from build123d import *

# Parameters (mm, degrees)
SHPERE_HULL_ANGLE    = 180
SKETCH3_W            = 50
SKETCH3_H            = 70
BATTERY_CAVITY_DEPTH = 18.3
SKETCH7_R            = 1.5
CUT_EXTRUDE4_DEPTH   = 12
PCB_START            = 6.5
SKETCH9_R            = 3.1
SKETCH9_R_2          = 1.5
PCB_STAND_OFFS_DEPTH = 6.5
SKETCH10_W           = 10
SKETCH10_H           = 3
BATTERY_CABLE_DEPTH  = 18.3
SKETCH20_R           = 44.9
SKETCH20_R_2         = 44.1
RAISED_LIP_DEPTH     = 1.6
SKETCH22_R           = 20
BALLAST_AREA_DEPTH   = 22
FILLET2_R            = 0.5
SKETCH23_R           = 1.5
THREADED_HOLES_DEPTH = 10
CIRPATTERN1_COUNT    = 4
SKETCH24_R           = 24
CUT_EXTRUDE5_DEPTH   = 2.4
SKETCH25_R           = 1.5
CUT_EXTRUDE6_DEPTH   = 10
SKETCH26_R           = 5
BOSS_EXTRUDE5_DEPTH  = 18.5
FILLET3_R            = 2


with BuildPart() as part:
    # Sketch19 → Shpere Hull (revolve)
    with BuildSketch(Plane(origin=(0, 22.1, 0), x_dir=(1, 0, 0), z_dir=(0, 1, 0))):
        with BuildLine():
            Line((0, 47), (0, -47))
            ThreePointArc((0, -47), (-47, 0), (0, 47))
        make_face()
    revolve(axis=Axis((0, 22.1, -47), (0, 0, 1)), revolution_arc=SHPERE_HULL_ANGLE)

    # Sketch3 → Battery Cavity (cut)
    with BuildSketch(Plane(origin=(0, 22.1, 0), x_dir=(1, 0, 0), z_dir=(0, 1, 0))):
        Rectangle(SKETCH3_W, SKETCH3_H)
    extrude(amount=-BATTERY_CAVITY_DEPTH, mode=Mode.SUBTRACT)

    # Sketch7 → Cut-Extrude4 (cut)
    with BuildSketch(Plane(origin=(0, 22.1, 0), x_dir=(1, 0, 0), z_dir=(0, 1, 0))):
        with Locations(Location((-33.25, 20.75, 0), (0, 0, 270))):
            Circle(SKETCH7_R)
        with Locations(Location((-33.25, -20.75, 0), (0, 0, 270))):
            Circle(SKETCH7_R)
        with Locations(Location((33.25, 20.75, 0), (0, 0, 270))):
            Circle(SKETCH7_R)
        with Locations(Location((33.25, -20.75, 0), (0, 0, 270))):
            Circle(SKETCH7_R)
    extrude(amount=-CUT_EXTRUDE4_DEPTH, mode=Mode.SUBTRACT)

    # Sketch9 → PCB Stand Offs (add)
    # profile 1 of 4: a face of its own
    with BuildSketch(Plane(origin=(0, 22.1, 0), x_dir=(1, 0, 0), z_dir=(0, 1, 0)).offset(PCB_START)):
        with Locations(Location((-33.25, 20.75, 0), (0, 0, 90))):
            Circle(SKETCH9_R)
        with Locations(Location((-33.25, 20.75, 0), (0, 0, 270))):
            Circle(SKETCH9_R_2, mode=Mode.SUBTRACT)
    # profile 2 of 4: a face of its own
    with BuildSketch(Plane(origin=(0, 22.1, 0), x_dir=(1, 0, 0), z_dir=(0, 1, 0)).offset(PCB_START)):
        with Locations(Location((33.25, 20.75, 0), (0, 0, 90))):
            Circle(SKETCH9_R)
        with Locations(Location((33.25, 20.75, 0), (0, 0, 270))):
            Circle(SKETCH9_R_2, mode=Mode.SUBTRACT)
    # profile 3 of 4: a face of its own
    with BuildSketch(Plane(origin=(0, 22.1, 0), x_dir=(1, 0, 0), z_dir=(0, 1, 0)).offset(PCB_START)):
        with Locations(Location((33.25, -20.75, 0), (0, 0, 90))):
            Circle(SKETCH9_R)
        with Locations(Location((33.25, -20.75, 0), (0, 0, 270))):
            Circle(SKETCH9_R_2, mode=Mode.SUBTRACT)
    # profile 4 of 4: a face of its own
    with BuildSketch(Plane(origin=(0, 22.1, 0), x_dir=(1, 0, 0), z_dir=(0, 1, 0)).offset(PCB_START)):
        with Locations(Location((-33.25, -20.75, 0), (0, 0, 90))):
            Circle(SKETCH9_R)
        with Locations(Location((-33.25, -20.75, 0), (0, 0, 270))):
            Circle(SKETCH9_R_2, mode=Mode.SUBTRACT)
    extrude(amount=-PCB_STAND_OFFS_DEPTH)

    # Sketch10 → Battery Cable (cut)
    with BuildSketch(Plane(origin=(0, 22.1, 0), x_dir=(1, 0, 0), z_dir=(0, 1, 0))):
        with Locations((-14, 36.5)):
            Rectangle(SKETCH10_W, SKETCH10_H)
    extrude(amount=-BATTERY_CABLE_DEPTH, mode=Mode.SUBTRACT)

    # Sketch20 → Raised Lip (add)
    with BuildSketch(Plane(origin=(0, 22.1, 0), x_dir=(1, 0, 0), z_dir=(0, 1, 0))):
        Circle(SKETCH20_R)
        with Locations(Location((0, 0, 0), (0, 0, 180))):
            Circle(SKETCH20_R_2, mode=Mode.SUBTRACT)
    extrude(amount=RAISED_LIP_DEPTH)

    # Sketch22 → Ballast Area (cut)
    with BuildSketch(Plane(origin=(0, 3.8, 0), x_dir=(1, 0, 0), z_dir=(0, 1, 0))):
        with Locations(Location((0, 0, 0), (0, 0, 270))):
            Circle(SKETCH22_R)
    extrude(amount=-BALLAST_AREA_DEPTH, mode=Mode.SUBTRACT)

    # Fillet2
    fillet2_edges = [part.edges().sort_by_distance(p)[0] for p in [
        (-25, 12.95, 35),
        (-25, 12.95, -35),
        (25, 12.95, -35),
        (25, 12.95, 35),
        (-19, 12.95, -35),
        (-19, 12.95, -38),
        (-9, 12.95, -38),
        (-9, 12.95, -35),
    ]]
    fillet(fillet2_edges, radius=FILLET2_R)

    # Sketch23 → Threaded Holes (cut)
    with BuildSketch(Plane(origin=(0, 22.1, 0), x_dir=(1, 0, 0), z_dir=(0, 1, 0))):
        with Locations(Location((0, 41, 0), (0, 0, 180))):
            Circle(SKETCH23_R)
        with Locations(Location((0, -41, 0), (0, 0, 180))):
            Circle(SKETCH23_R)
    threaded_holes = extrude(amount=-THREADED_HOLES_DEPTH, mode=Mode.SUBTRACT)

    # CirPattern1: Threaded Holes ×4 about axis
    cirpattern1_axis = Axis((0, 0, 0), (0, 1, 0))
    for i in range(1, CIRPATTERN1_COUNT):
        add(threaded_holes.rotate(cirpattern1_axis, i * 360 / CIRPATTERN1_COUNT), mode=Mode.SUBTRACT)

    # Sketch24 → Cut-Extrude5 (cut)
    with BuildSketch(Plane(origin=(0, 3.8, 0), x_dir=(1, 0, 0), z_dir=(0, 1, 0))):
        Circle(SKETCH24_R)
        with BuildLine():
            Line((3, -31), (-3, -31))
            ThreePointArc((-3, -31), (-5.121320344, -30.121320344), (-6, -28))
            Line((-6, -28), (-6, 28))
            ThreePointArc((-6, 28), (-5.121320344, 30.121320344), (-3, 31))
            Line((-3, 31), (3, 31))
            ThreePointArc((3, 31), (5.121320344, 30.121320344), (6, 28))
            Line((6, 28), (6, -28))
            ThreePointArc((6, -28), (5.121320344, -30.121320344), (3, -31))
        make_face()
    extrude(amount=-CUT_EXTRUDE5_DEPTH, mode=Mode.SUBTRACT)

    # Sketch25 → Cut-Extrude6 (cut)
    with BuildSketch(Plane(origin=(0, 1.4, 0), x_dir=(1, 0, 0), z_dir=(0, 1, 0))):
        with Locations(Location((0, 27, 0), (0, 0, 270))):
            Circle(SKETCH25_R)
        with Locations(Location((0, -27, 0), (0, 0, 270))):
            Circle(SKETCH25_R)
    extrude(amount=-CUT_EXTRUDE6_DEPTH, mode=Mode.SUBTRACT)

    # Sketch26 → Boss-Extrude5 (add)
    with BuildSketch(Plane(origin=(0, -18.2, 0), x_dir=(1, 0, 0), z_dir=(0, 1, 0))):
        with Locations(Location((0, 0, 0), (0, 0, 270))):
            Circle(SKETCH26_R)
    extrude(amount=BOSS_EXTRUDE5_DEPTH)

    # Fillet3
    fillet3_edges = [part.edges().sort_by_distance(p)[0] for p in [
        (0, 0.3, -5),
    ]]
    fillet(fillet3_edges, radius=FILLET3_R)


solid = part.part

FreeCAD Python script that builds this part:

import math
import FreeCAD as App
import Part
import Sketcher

V = App.Vector


def edges_at(feature, points):
    """Names of the edges that pass closest to the given points."""
    edges = feature.Shape.Edges
    near = lambda p: min(range(len(edges)), key=lambda i: edges[i].distToShape(Part.Vertex(*p))[0])
    return sorted({f"Edge{near(p) + 1}" for p in points})

doc = App.newDocument("Part")
body = doc.addObject("PartDesign::Body", "Body")

sketch1 = doc.addObject("Sketcher::SketchObject", "Sketch")
body.addObject(sketch1)
sketch1.AttachmentSupport = (doc.XZ_Plane, [""])
sketch1.MapMode = "FlatFace"
sketch1.AttachmentOffset = App.Placement(V(0, 0, -22.1), App.Rotation())
sketch1.addGeometry([
    Part.LineSegment(V(0, 47, 0), V(0, -47, 0)),
    Part.ArcOfCircle(Part.Circle(V(0, 0, 0), V(0, 0, 1), 47), math.radians(90), math.radians(270)),
], False)
sketch1.addConstraint([
    Sketcher.Constraint("Coincident", 0, 1, 1, 1),
    Sketcher.Constraint("Coincident", 1, 2, 0, 2),
    Sketcher.Constraint("Vertical", 0),
    Sketcher.Constraint("Coincident", 1, 3, -1, 1),
    Sketcher.Constraint("PointOnObject", 0, 1, -2),
    Sketcher.Constraint("Radius", 1, 47.0),
])
revolution = doc.addObject("PartDesign::Revolution", "Revolution")
body.addObject(revolution)
revolution.Profile = sketch1
revolution.ReferenceAxis = (sketch1, ["V_Axis"])
revolution.Angle = 180

sketch2 = doc.addObject("Sketcher::SketchObject", "Sketch001")
body.addObject(sketch2)
sketch2.AttachmentSupport = (doc.XZ_Plane, [""])
sketch2.MapMode = "FlatFace"
sketch2.AttachmentOffset = App.Placement(V(0, 0, -22.1), App.Rotation())
sketch2.addGeometry([
    Part.LineSegment(V(-25, -35, 0), V(-25, 35, 0)),
    Part.LineSegment(V(-25, 35, 0), V(25, 35, 0)),
    Part.LineSegment(V(25, 35, 0), V(25, -35, 0)),
    Part.LineSegment(V(25, -35, 0), V(-25, -35, 0)),
], False)
sketch2.addConstraint([
    Sketcher.Constraint("Coincident", 0, 2, 1, 1),
    Sketcher.Constraint("Coincident", 1, 2, 2, 1),
    Sketcher.Constraint("Coincident", 2, 2, 3, 1),
    Sketcher.Constraint("Coincident", 3, 2, 0, 1),
    Sketcher.Constraint("Vertical", 0),
    Sketcher.Constraint("Horizontal", 1),
    Sketcher.Constraint("Vertical", 2),
    Sketcher.Constraint("Horizontal", 3),
    Sketcher.Constraint("Symmetric", 0, 2, 2, 2, -1, 1),
    Sketcher.Constraint("DistanceX", 1, 1, 1, 2, 50.0),
    Sketcher.Constraint("DistanceY", 0, 1, 0, 2, 70.0),
])
pocket1 = doc.addObject("PartDesign::Pocket", "Pocket")
body.addObject(pocket1)
pocket1.Profile = sketch2
pocket1.Length = 18.3
pocket1.Reversed = True

sketch3 = doc.addObject("Sketcher::SketchObject", "Sketch002")
body.addObject(sketch3)
sketch3.AttachmentSupport = (doc.XZ_Plane, [""])
sketch3.MapMode = "FlatFace"
sketch3.AttachmentOffset = App.Placement(V(0, 0, -22.1), App.Rotation())
sketch3.addGeometry([
    Part.Circle(V(-33.2, -20.8, 0), V(0, 0, 1), 1.5),
    Part.Circle(V(-33.2, 20.8, 0), V(0, 0, 1), 1.5),
    Part.Circle(V(33.2, -20.8, 0), V(0, 0, 1), 1.5),
    Part.Circle(V(33.2, 20.8, 0), V(0, 0, 1), 1.5),
], False)
sketch3.addConstraint([
    Sketcher.Constraint("Equal", 0, 1),
    Sketcher.Constraint("Equal", 1, 2),
    Sketcher.Constraint("Equal", 2, 3),
    Sketcher.Constraint("Symmetric", 1, 3, 2, 3, -1, 1),
    Sketcher.Constraint("Symmetric", 0, 3, 3, 3, -1, 1),
    Sketcher.Constraint("Symmetric", 0, 3, 2, 3, -2),
    Sketcher.Constraint("Diameter", 0, 3.0),
    Sketcher.Constraint("DistanceY", 0, 3, 1, 3, 41.5),
    Sketcher.Constraint("DistanceX", 0, 3, 2, 3, 66.5),
])
pocket2 = doc.addObject("PartDesign::Pocket", "Pocket001")
body.addObject(pocket2)
pocket2.Profile = sketch3
pocket2.Length = 12
pocket2.Reversed = True

sketch4 = doc.addObject("Sketcher::SketchObject", "Sketch003")
body.addObject(sketch4)
sketch4.AttachmentSupport = (doc.XZ_Plane, [""])
sketch4.MapMode = "FlatFace"
sketch4.AttachmentOffset = App.Placement(V(0, 0, -28.6), App.Rotation())
sketch4.addGeometry([
    Part.Circle(V(-33.2, -20.8, 0), V(0, 0, 1), 3.1),
    Part.Circle(V(-33.2, -20.8, 0), V(0, 0, 1), 1.5),
    Part.Circle(V(33.2, -20.8, 0), V(0, 0, 1), 3.1),
    Part.Circle(V(33.2, -20.8, 0), V(0, 0, 1), 1.5),
    Part.Circle(V(33.2, 20.8, 0), V(0, 0, 1), 3.1),
    Part.Circle(V(33.2, 20.8, 0), V(0, 0, 1), 1.5),
    Part.Circle(V(-33.2, 20.8, 0), V(0, 0, 1), 3.1),
    Part.Circle(V(-33.2, 20.8, 0), V(0, 0, 1), 1.5),
], False)
sketch4.addConstraint([
    Sketcher.Constraint("Coincident", 1, 3, 0, 3),
    Sketcher.Constraint("Coincident", 3, 3, 2, 3),
    Sketcher.Constraint("Coincident", 5, 3, 4, 3),
    Sketcher.Constraint("Coincident", 7, 3, 6, 3),
    Sketcher.Constraint("Equal", 0, 2),
    Sketcher.Constraint("Equal", 1, 3),
    Sketcher.Constraint("Equal", 2, 4),
    Sketcher.Constraint("Equal", 3, 5),
    Sketcher.Constraint("Equal", 4, 6),
    Sketcher.Constraint("Equal", 5, 7),
    Sketcher.Constraint("Symmetric", 0, 3, 4, 3, -1, 1),
    Sketcher.Constraint("Symmetric", 2, 3, 6, 3, -1, 1),
    Sketcher.Constraint("Symmetric", 0, 3, 2, 3, -2),
    Sketcher.Constraint("Diameter", 1, 3.0),
    Sketcher.Constraint("Diameter", 0, 6.2),
    Sketcher.Constraint("DistanceX", 0, 3, 2, 3, 66.5),
    Sketcher.Constraint("DistanceY", 2, 3, 4, 3, 41.5),
])
pad1 = doc.addObject("PartDesign::Pad", "Pad")
body.addObject(pad1)
pad1.Profile = sketch4
pad1.Length = 6.5

sketch5 = doc.addObject("Sketcher::SketchObject", "Sketch004")
body.addObject(sketch5)
sketch5.AttachmentSupport = (doc.XZ_Plane, [""])
sketch5.MapMode = "FlatFace"
sketch5.AttachmentOffset = App.Placement(V(0, 0, -22.1), App.Rotation())
sketch5.addGeometry([
    Part.LineSegment(V(-19, -38, 0), V(-19, -35, 0)),
    Part.LineSegment(V(-19, -35, 0), V(-9, -35, 0)),
    Part.LineSegment(V(-9, -35, 0), V(-9, -38, 0)),
    Part.LineSegment(V(-9, -38, 0), V(-19, -38, 0)),
], False)
sketch5.addConstraint([
    Sketcher.Constraint("Coincident", 0, 2, 1, 1),
    Sketcher.Constraint("Coincident", 1, 2, 2, 1),
    Sketcher.Constraint("Coincident", 2, 2, 3, 1),
    Sketcher.Constraint("Coincident", 3, 2, 0, 1),
    Sketcher.Constraint("Vertical", 0),
    Sketcher.Constraint("Horizontal", 1),
    Sketcher.Constraint("Vertical", 2),
    Sketcher.Constraint("Horizontal", 3),
    Sketcher.Constraint("DistanceX", 1, 1, 1, 2, 10.0),
    Sketcher.Constraint("DistanceY", 0, 1, 0, 2, 3.0),
    Sketcher.Constraint("DistanceX", 0, 2, -1, 1, 19.0),
    Sketcher.Constraint("DistanceY", 0, 2, -1, 1, 35.0),
])
pocket3 = doc.addObject("PartDesign::Pocket", "Pocket002")
body.addObject(pocket3)
pocket3.Profile = sketch5
pocket3.Length = 18.3
pocket3.Reversed = True

sketch6 = doc.addObject("Sketcher::SketchObject", "Sketch005")
body.addObject(sketch6)
sketch6.AttachmentSupport = (doc.XZ_Plane, [""])
sketch6.MapMode = "FlatFace"
sketch6.AttachmentOffset = App.Placement(V(0, 0, -22.1), App.Rotation())
sketch6.addGeometry([
    Part.Circle(V(0, 0, 0), V(0, 0, 1), 45),
    Part.Circle(V(0, 0, 0), V(0, 0, 1), 44),
], False)
sketch6.addConstraint([
    Sketcher.Constraint("Coincident", 0, 3, -1, 1),
    Sketcher.Constraint("Coincident", 1, 3, -1, 1),
    Sketcher.Constraint("Diameter", 0, 89.8),
    Sketcher.Constraint("Diameter", 1, 88.2),
])
pad2 = doc.addObject("PartDesign::Pad", "Pad001")
body.addObject(pad2)
pad2.Profile = sketch6
pad2.Length = 1.6
pad2.Reversed = True

sketch7 = doc.addObject("Sketcher::SketchObject", "Sketch006")
body.addObject(sketch7)
sketch7.AttachmentSupport = (doc.XZ_Plane, [""])
sketch7.MapMode = "FlatFace"
sketch7.AttachmentOffset = App.Placement(V(0, 0, -3.8), App.Rotation())
sketch7.addGeometry(Part.Circle(V(0, 0, 0), V(0, 0, 1), 20), False)
sketch7.addConstraint([
    Sketcher.Constraint("Coincident", 0, 3, -1, 1),
    Sketcher.Constraint("Diameter", 0, 40.0),
])
pocket4 = doc.addObject("PartDesign::Pocket", "Pocket003")
body.addObject(pocket4)
pocket4.Profile = sketch7
pocket4.Length = 22
pocket4.Reversed = True
doc.recompute()

fillet = doc.addObject("PartDesign::Fillet", "Fillet")
body.addObject(fillet)
fillet.Base = (pocket4, edges_at(pocket4, [
    (-25, 12.95, 35),
    (-25, 12.95, -35),
    (25, 12.95, -35),
    (25, 12.95, 35),
    (-19, 12.95, -35),
    (-19, 12.95, -38),
    (-9, 12.95, -38),
    (-9, 12.95, -35),
]))
fillet.Radius = 0.5

sketch8 = doc.addObject("Sketcher::SketchObject", "Sketch007")
body.addObject(sketch8)
sketch8.AttachmentSupport = (doc.XZ_Plane, [""])
sketch8.MapMode = "FlatFace"
sketch8.AttachmentOffset = App.Placement(V(0, 0, -22.1), App.Rotation())
sketch8.addGeometry([
    Part.Circle(V(0, -41, 0), V(0, 0, 1), 1.5),
    Part.Circle(V(0, 41, 0), V(0, 0, 1), 1.5),
], False)
sketch8.addConstraint([
    Sketcher.Constraint("Equal", 0, 1),
    Sketcher.Constraint("Symmetric", 0, 3, 1, 3, -1, 1),
    Sketcher.Constraint("PointOnObject", 0, 3, -2),
    Sketcher.Constraint("Diameter", 0, 3.0),
    Sketcher.Constraint("DistanceY", 0, 3, -1, 1, 41.0),
])
pocket5 = doc.addObject("PartDesign::Pocket", "Pocket004")
body.addObject(pocket5)
pocket5.Profile = sketch8
pocket5.Length = 10
pocket5.Reversed = True
doc.recompute()

polarpattern = doc.addObject("PartDesign::PolarPattern", "PolarPattern")
body.addObject(polarpattern)
polarpattern.Originals = [pocket5]
polarpattern.Axis = (doc.Y_Axis, [""])
polarpattern.Angle = 360
polarpattern.Occurrences = 4
body.Tip = polarpattern

sketch9 = doc.addObject("Sketcher::SketchObject", "Sketch008")
body.addObject(sketch9)
sketch9.AttachmentSupport = (doc.XZ_Plane, [""])
sketch9.MapMode = "FlatFace"
sketch9.AttachmentOffset = App.Placement(V(0, 0, -3.8), App.Rotation())
sketch9.addGeometry([
    Part.ArcOfCircle(Part.Circle(V(0, 0, 0), V(0, 0, 1), 24), math.radians(-76), math.radians(76)),
    Part.LineSegment(V(6, -23.2, 0), V(6, -28, 0)),
    Part.ArcOfCircle(Part.Circle(V(3, -28, 0), V(0, 0, 1), 3), math.radians(-90), math.radians(0)),
    Part.LineSegment(V(3, -31, 0), V(-3, -31, 0)),
    Part.ArcOfCircle(Part.Circle(V(-3, -28, 0), V(0, 0, 1), 3), math.radians(180), math.radians(270)),
    Part.LineSegment(V(-6, -28, 0), V(-6, -23.2, 0)),
    Part.ArcOfCircle(Part.Circle(V(0, 0, 0), V(0, 0, 1), 24), math.radians(104), math.radians(256)),
    Part.LineSegment(V(-6, 23.2, 0), V(-6, 28, 0)),
    Part.ArcOfCircle(Part.Circle(V(-3, 28, 0), V(0, 0, 1), 3), math.radians(90), math.radians(180)),
    Part.LineSegment(V(-3, 31, 0), V(3, 31, 0)),
    Part.ArcOfCircle(Part.Circle(V(3, 28, 0), V(0, 0, 1), 3), math.radians(0), math.radians(90)),
    Part.LineSegment(V(6, 28, 0), V(6, 23.2, 0)),
], False)
sketch9.addConstraint([
    Sketcher.Constraint("Coincident", 0, 1, 1, 1),
    Sketcher.Constraint("Tangent", 1, 2, 2, 2),
    Sketcher.Constraint("Tangent", 2, 1, 3, 1),
    Sketcher.Constraint("Tangent", 3, 2, 4, 2),
    Sketcher.Constraint("Tangent", 4, 1, 5, 1),
    Sketcher.Constraint("Coincident", 5, 2, 6, 2),
    Sketcher.Constraint("Coincident", 6, 1, 7, 1),
    Sketcher.Constraint("Tangent", 7, 2, 8, 2),
    Sketcher.Constraint("Tangent", 8, 1, 9, 1),
    Sketcher.Constraint("Tangent", 9, 2, 10, 2),
    Sketcher.Constraint("Tangent", 10, 1, 11, 1),
    Sketcher.Constraint("Coincident", 11, 2, 0, 2),
    Sketcher.Constraint("Vertical", 1),
    Sketcher.Constraint("Horizontal", 3),
    Sketcher.Constraint("Vertical", 5),
    Sketcher.Constraint("Vertical", 7),
    Sketcher.Constraint("Horizontal", 9),
    Sketcher.Constraint("Vertical", 11),
    Sketcher.Constraint("Coincident", 0, 3, -1, 1),
    Sketcher.Constraint("Coincident", 6, 3, -1, 1),
    Sketcher.Constraint("Equal", 2, 4),
    Sketcher.Constraint("Equal", 0, 6),
    Sketcher.Constraint("Equal", 4, 8),
    Sketcher.Constraint("Equal", 8, 10),
    Sketcher.Constraint("Symmetric", 2, 3, 8, 3, -1, 1),
    Sketcher.Constraint("Horizontal", 0, 1, 5, 2),
    Sketcher.Constraint("Horizontal", 6, 1, 11, 2),
    Sketcher.Constraint("Radius", 0, 24.0),
    Sketcher.Constraint("Radius", 2, 3.0),
    Sketcher.Constraint("DistanceX", 3, 2, 3, 1, 6.0),
    Sketcher.Constraint("DistanceY", 2, 3, -1, 1, 28.0),
])
pocket6 = doc.addObject("PartDesign::Pocket", "Pocket005")
body.addObject(pocket6)
pocket6.Profile = sketch9
pocket6.Length = 2.4
pocket6.Reversed = True

sketch10 = doc.addObject("Sketcher::SketchObject", "Sketch009")
body.addObject(sketch10)
sketch10.AttachmentSupport = (doc.XZ_Plane, [""])
sketch10.MapMode = "FlatFace"
sketch10.AttachmentOffset = App.Placement(V(0, 0, -1.4), App.Rotation())
sketch10.addGeometry([
    Part.Circle(V(0, -27, 0), V(0, 0, 1), 1.5),
    Part.Circle(V(0, 27, 0), V(0, 0, 1), 1.5),
], False)
sketch10.addConstraint([
    Sketcher.Constraint("Equal", 0, 1),
    Sketcher.Constraint("Symmetric", 0, 3, 1, 3, -1, 1),
    Sketcher.Constraint("PointOnObject", 0, 3, -2),
    Sketcher.Constraint("Diameter", 0, 3.0),
    Sketcher.Constraint("DistanceY", 0, 3, -1, 1, 27.0),
])
pocket7 = doc.addObject("PartDesign::Pocket", "Pocket006")
body.addObject(pocket7)
pocket7.Profile = sketch10
pocket7.Length = 10
pocket7.Reversed = True

sketch11 = doc.addObject("Sketcher::SketchObject", "Sketch010")
body.addObject(sketch11)
sketch11.AttachmentSupport = (doc.XZ_Plane, [""])
sketch11.MapMode = "FlatFace"
sketch11.AttachmentOffset = App.Placement(V(0, 0, 18.2), App.Rotation())
sketch11.addGeometry(Part.Circle(V(0, 0, 0), V(0, 0, 1), 5), False)
sketch11.addConstraint([
    Sketcher.Constraint("Coincident", 0, 3, -1, 1),
    Sketcher.Constraint("Diameter", 0, 10.0),
])
pad3 = doc.addObject("PartDesign::Pad", "Pad002")
body.addObject(pad3)
pad3.Profile = sketch11
pad3.Length = 18.5
pad3.Reversed = True
doc.recompute()

fillet2 = doc.addObject("PartDesign::Fillet", "Fillet001")
body.addObject(fillet2)
fillet2.Base = (pad3, edges_at(pad3, [(0, 0.3, -5)]))
fillet2.Radius = 2

doc.recompute()
